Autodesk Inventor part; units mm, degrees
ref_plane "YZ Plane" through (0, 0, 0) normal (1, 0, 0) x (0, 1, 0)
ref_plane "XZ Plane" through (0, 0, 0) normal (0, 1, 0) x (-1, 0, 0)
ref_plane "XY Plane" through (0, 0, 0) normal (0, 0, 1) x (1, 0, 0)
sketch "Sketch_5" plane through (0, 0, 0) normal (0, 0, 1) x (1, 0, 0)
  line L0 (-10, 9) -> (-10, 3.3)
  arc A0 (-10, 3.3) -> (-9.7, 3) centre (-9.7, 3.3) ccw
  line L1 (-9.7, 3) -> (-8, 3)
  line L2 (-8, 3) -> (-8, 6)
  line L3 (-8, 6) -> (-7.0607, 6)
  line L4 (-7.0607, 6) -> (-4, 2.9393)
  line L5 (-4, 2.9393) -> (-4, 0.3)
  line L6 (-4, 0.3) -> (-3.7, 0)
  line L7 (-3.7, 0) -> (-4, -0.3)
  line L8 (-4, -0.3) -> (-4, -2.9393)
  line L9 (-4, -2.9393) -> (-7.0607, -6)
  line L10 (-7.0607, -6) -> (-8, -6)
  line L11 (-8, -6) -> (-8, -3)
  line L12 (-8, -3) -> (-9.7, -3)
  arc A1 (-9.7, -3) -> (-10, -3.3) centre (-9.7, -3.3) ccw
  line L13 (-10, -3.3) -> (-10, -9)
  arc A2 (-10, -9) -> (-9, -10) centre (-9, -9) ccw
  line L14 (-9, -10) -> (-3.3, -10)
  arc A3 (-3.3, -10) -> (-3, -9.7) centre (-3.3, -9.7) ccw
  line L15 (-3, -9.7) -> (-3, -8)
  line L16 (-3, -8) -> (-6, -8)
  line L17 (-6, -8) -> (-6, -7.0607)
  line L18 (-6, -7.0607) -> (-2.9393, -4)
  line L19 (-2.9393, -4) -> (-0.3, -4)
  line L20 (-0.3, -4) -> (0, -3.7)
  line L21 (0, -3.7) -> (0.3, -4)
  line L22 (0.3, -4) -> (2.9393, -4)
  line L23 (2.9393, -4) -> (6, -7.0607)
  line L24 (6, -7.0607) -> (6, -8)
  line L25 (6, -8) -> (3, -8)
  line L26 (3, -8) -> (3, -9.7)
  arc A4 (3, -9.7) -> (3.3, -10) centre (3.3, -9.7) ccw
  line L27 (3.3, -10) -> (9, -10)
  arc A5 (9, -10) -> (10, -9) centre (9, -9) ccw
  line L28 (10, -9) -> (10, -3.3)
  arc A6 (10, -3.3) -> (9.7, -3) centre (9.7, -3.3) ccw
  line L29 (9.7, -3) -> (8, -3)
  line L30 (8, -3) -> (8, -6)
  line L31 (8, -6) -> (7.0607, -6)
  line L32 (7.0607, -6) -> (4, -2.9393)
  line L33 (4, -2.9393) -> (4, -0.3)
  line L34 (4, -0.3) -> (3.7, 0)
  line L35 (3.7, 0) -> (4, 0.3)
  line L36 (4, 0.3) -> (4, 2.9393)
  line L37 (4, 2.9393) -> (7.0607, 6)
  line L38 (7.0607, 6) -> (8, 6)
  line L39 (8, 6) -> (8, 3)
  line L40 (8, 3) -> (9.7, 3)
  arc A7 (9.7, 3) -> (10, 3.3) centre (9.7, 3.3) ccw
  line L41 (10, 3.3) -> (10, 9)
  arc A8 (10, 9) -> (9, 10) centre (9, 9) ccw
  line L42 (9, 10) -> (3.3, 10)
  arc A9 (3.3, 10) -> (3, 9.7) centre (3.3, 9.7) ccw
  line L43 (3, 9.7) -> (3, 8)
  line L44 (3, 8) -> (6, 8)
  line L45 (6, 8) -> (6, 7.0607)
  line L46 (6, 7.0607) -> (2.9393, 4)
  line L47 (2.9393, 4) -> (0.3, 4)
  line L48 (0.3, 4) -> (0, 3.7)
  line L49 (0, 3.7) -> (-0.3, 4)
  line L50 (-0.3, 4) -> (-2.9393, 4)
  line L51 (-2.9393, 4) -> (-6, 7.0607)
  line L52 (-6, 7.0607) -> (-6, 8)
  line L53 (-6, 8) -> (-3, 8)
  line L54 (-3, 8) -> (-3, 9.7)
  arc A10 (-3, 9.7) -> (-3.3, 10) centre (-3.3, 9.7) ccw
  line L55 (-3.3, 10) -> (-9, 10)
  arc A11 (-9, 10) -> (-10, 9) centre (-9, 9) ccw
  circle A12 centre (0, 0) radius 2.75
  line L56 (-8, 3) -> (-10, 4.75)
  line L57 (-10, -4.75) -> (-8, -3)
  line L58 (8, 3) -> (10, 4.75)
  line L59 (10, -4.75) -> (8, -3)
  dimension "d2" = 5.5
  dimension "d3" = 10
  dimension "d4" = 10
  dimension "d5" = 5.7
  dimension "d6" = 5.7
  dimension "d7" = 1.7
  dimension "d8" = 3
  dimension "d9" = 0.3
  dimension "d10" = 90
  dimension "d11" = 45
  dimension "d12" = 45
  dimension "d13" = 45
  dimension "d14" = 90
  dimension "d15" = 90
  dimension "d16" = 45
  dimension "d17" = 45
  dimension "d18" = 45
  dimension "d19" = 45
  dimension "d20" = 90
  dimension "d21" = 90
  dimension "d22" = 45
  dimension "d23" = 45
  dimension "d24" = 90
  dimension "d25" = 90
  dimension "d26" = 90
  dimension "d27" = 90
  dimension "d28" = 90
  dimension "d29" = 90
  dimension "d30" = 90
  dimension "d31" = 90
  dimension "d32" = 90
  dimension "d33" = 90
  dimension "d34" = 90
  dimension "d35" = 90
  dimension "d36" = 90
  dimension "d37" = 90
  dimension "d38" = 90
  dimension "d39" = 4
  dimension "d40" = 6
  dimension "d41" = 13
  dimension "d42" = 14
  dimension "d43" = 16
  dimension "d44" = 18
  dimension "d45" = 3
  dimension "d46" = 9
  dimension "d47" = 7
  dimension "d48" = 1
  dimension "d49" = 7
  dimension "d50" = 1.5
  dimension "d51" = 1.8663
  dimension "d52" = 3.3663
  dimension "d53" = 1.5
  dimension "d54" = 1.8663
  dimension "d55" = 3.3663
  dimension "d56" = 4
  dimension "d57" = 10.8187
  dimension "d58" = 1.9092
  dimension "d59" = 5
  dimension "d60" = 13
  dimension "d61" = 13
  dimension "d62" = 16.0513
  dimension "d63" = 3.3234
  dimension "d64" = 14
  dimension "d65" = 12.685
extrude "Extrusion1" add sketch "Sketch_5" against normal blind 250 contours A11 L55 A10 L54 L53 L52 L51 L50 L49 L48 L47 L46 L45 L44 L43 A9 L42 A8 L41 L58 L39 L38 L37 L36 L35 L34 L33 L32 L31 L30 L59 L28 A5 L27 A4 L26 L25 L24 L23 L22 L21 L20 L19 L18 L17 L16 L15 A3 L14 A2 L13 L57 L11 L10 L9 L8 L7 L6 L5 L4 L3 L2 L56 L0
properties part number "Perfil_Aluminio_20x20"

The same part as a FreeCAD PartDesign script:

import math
import FreeCAD as App
import Part
import Sketcher
Q = App.Units.Quantity

doc = App.newDocument("Part")
body = doc.addObject("PartDesign::Body", "Body")

# Sketch on XY plane
sketch1 = body.newObject("Sketcher::SketchObject", "Sketch")
sketch1.AttachmentSupport = (doc.getObject("XY_Plane"), [""])
sketch1.MapMode = "FlatFace"
sketch1.addGeometry(Part.ArcOfCircle(Part.Circle(App.Vector(-9, 9, 0), App.Vector(0, 0, 1), 1), math.radians(90), math.radians(180)), False)
sketch1.addGeometry(Part.LineSegment(App.Vector(-10, 9, 0), App.Vector(-10, 4.75, 0)), False)
sketch1.addGeometry(Part.LineSegment(App.Vector(-10, 4.75, 0), App.Vector(-8, 3, 0)), False)
sketch1.addGeometry(Part.LineSegment(App.Vector(-8, 3, 0), App.Vector(-8, 6, 0)), False)
sketch1.addGeometry(Part.LineSegment(App.Vector(-8, 6, 0), App.Vector(-7.0607, 6, 0)), False)
sketch1.addGeometry(Part.LineSegment(App.Vector(-7.0607, 6, 0), App.Vector(-4, 2.9393, 0)), False)
sketch1.addGeometry(Part.LineSegment(App.Vector(-4, 2.9393, 0), App.Vector(-4, 0.3, 0)), False)
sketch1.addGeometry(Part.LineSegment(App.Vector(-4, 0.3, 0), App.Vector(-3.7, 0, 0)), False)
sketch1.addGeometry(Part.LineSegment(App.Vector(-3.7, 0, 0), App.Vector(-4, -0.3, 0)), False)
sketch1.addGeometry(Part.LineSegment(App.Vector(-4, -0.3, 0), App.Vector(-4, -2.9393, 0)), False)
sketch1.addGeometry(Part.LineSegment(App.Vector(-4, -2.9393, 0), App.Vector(-7.0607, -6, 0)), False)
sketch1.addGeometry(Part.LineSegment(App.Vector(-7.0607, -6, 0), App.Vector(-8, -6, 0)), False)
sketch1.addGeometry(Part.LineSegment(App.Vector(-8, -6, 0), App.Vector(-8, -3, 0)), False)
sketch1.addGeometry(Part.LineSegment(App.Vector(-8, -3, 0), App.Vector(-10, -4.75, 0)), False)
sketch1.addGeometry(Part.LineSegment(App.Vector(-10, -4.75, 0), App.Vector(-10, -9, 0)), False)
sketch1.addGeometry(Part.ArcOfCircle(Part.Circle(App.Vector(-9, -9, 0), App.Vector(0, 0, 1), 1), math.radians(180), math.radians(270)), False)
sketch1.addGeometry(Part.LineSegment(App.Vector(-9, -10, 0), App.Vector(-3.3, -10, 0)), False)
sketch1.addGeometry(Part.ArcOfCircle(Part.Circle(App.Vector(-3.3, -9.7, 0), App.Vector(0, 0, 1), 0.3), math.radians(-90), math.radians(0)), False)
sketch1.addGeometry(Part.LineSegment(App.Vector(-3, -9.7, 0), App.Vector(-3, -8, 0)), False)
sketch1.addGeometry(Part.LineSegment(App.Vector(-3, -8, 0), App.Vector(-6, -8, 0)), False)
sketch1.addGeometry(Part.LineSegment(App.Vector(-6, -8, 0), App.Vector(-6, -7.0607, 0)), False)
sketch1.addGeometry(Part.LineSegment(App.Vector(-6, -7.0607, 0), App.Vector(-2.9393, -4, 0)), False)
sketch1.addGeometry(Part.LineSegment(App.Vector(-2.9393, -4, 0), App.Vector(-0.3, -4, 0)), False)
sketch1.addGeometry(Part.LineSegment(App.Vector(-0.3, -4, 0), App.Vector(0, -3.7, 0)), False)
sketch1.addGeometry(Part.LineSegment(App.Vector(0, -3.7, 0), App.Vector(0.3, -4, 0)), False)
sketch1.addGeometry(Part.LineSegment(App.Vector(0.3, -4, 0), App.Vector(2.9393, -4, 0)), False)
sketch1.addGeometry(Part.LineSegment(App.Vector(2.9393, -4, 0), App.Vector(6, -7.0607, 0)), False)
sketch1.addGeometry(Part.LineSegment(App.Vector(6, -7.0607, 0), App.Vector(6, -8, 0)), False)
sketch1.addGeometry(Part.LineSegment(App.Vector(6, -8, 0), App.Vector(3, -8, 0)), False)
sketch1.addGeometry(Part.LineSegment(App.Vector(3, -8, 0), App.Vector(3, -9.7, 0)), False)
sketch1.addGeometry(Part.ArcOfCircle(Part.Circle(App.Vector(3.3, -9.7, 0), App.Vector(0, 0, 1), 0.3), math.radians(180), math.radians(270)), False)
sketch1.addGeometry(Part.LineSegment(App.Vector(3.3, -10, 0), App.Vector(9, -10, 0)), False)
sketch1.addGeometry(Part.ArcOfCircle(Part.Circle(App.Vector(9, -9, 0), App.Vector(0, 0, 1), 1), math.radians(-90), math.radians(0)), False)
sketch1.addGeometry(Part.LineSegment(App.Vector(10, -9, 0), App.Vector(10, -4.75, 0)), False)
sketch1.addGeometry(Part.LineSegment(App.Vector(10, -4.75, 0), App.Vector(8, -3, 0)), False)
sketch1.addGeometry(Part.LineSegment(App.Vector(8, -3, 0), App.Vector(8, -6, 0)), False)
sketch1.addGeometry(Part.LineSegment(App.Vector(8, -6, 0), App.Vector(7.0607, -6, 0)), False)
sketch1.addGeometry(Part.LineSegment(App.Vector(7.0607, -6, 0), App.Vector(4, -2.9393, 0)), False)
sketch1.addGeometry(Part.LineSegment(App.Vector(4, -2.9393, 0), App.Vector(4, -0.3, 0)), False)
sketch1.addGeometry(Part.LineSegment(App.Vector(4, -0.3, 0), App.Vector(3.7, 0, 0)), False)
sketch1.addGeometry(Part.LineSegment(App.Vector(3.7, 0, 0), App.Vector(4, 0.3, 0)), False)
sketch1.addGeometry(Part.LineSegment(App.Vector(4, 0.3, 0), App.Vector(4, 2.9393, 0)), False)
sketch1.addGeometry(Part.LineSegment(App.Vector(4, 2.9393, 0), App.Vector(7.0607, 6, 0)), False)
sketch1.addGeometry(Part.LineSegment(App.Vector(7.0607, 6, 0), App.Vector(8, 6, 0)), False)
sketch1.addGeometry(Part.LineSegment(App.Vector(8, 6, 0), App.Vector(8, 3, 0)), False)
sketch1.addGeometry(Part.LineSegment(App.Vector(8, 3, 0), App.Vector(10, 4.75, 0)), False)
sketch1.addGeometry(Part.LineSegment(App.Vector(10, 4.75, 0), App.Vector(10, 9, 0)), False)
sketch1.addGeometry(Part.ArcOfCircle(Part.Circle(App.Vector(9, 9, 0), App.Vector(0, 0, 1), 1), math.radians(0), math.radians(90)), False)
sketch1.addGeometry(Part.LineSegment(App.Vector(9, 10, 0), App.Vector(3.3, 10, 0)), False)
sketch1.addGeometry(Part.ArcOfCircle(Part.Circle(App.Vector(3.3, 9.7, 0), App.Vector(0, 0, 1), 0.3), math.radians(90), math.radians(180)), False)
sketch1.addGeometry(Part.LineSegment(App.Vector(3, 9.7, 0), App.Vector(3, 8, 0)), False)
sketch1.addGeometry(Part.LineSegment(App.Vector(3, 8, 0), App.Vector(6, 8, 0)), False)
sketch1.addGeometry(Part.LineSegment(App.Vector(6, 8, 0), App.Vector(6, 7.0607, 0)), False)
sketch1.addGeometry(Part.LineSegment(App.Vector(6, 7.0607, 0), App.Vector(2.9393, 4, 0)), False)
sketch1.addGeometry(Part.LineSegment(App.Vector(2.9393, 4, 0), App.Vector(0.3, 4, 0)), False)
sketch1.addGeometry(Part.LineSegment(App.Vector(0.3, 4, 0), App.Vector(0, 3.7, 0)), False)
sketch1.addGeometry(Part.LineSegment(App.Vector(0, 3.7, 0), App.Vector(-0.3, 4, 0)), False)
sketch1.addGeometry(Part.LineSegment(App.Vector(-0.3, 4, 0), App.Vector(-2.9393, 4, 0)), False)
sketch1.addGeometry(Part.LineSegment(App.Vector(-2.9393, 4, 0), App.Vector(-6, 7.0607, 0)), False)
sketch1.addGeometry(Part.LineSegment(App.Vector(-6, 7.0607, 0), App.Vector(-6, 8, 0)), False)
sketch1.addGeometry(Part.LineSegment(App.Vector(-6, 8, 0), App.Vector(-3, 8, 0)), False)
sketch1.addGeometry(Part.LineSegment(App.Vector(-3, 8, 0), App.Vector(-3, 9.7, 0)), False)
sketch1.addGeometry(Part.ArcOfCircle(Part.Circle(App.Vector(-3.3, 9.7, 0), App.Vector(0, 0, 1), 0.3), math.radians(0), math.radians(90)), False)
sketch1.addGeometry(Part.LineSegment(App.Vector(-3.3, 10, 0), App.Vector(-9, 10, 0)), False)
sketch1.addGeometry(Part.Circle(App.Vector(0, 0, 0), App.Vector(0, 0, 1), 2.75), False)
sketch1.addConstraint(Sketcher.Constraint("Tangent", 0, 2, 1, 1))
sketch1.addConstraint(Sketcher.Constraint("Coincident", 1, 2, 2, 1))
sketch1.addConstraint(Sketcher.Constraint("Coincident", 2, 2, 3, 1))
sketch1.addConstraint(Sketcher.Constraint("Coincident", 3, 2, 4, 1))
sketch1.addConstraint(Sketcher.Constraint("Coincident", 4, 2, 5, 1))
sketch1.addConstraint(Sketcher.Constraint("Coincident", 5, 2, 6, 1))
sketch1.addConstraint(Sketcher.Constraint("Coincident", 6, 2, 7, 1))
sketch1.addConstraint(Sketcher.Constraint("Coincident", 7, 2, 8, 1))
sketch1.addConstraint(Sketcher.Constraint("Coincident", 8, 2, 9, 1))
sketch1.addConstraint(Sketcher.Constraint("Coincident", 9, 2, 10, 1))
sketch1.addConstraint(Sketcher.Constraint("Coincident", 10, 2, 11, 1))
sketch1.addConstraint(Sketcher.Constraint("Coincident", 11, 2, 12, 1))
sketch1.addConstraint(Sketcher.Constraint("Coincident", 12, 2, 13, 1))
sketch1.addConstraint(Sketcher.Constraint("Coincident", 13, 2, 14, 1))
sketch1.addConstraint(Sketcher.Constraint("Tangent", 14, 2, 15, 1))
sketch1.addConstraint(Sketcher.Constraint("Tangent", 15, 2, 16, 1))
sketch1.addConstraint(Sketcher.Constraint("Tangent", 16, 2, 17, 1))
sketch1.addConstraint(Sketcher.Constraint("Tangent", 17, 2, 18, 1))
sketch1.addConstraint(Sketcher.Constraint("Coincident", 18, 2, 19, 1))
sketch1.addConstraint(Sketcher.Constraint("Coincident", 19, 2, 20, 1))
sketch1.addConstraint(Sketcher.Constraint("Coincident", 20, 2, 21, 1))
sketch1.addConstraint(Sketcher.Constraint("Coincident", 21, 2, 22, 1))
sketch1.addConstraint(Sketcher.Constraint("Coincident", 22, 2, 23, 1))
sketch1.addConstraint(Sketcher.Constraint("Coincident", 23, 2, 24, 1))
sketch1.addConstraint(Sketcher.Constraint("Coincident", 24, 2, 25, 1))
sketch1.addConstraint(Sketcher.Constraint("Coincident", 25, 2, 26, 1))
sketch1.addConstraint(Sketcher.Constraint("Coincident", 26, 2, 27, 1))
sketch1.addConstraint(Sketcher.Constraint("Coincident", 27, 2, 28, 1))
sketch1.addConstraint(Sketcher.Constraint("Coincident", 28, 2, 29, 1))
sketch1.addConstraint(Sketcher.Constraint("Tangent", 29, 2, 30, 1))
sketch1.addConstraint(Sketcher.Constraint("Tangent", 30, 2, 31, 1))
sketch1.addConstraint(Sketcher.Constraint("Tangent", 31, 2, 32, 1))
sketch1.addConstraint(Sketcher.Constraint("Tangent", 32, 2, 33, 1))
sketch1.addConstraint(Sketcher.Constraint("Coincident", 33, 2, 34, 1))
sketch1.addConstraint(Sketcher.Constraint("Coincident", 34, 2, 35, 1))
sketch1.addConstraint(Sketcher.Constraint("Coincident", 35, 2, 36, 1))
sketch1.addConstraint(Sketcher.Constraint("Coincident", 36, 2, 37, 1))
sketch1.addConstraint(Sketcher.Constraint("Coincident", 37, 2, 38, 1))
sketch1.addConstraint(Sketcher.Constraint("Coincident", 38, 2, 39, 1))
sketch1.addConstraint(Sketcher.Constraint("Coincident", 39, 2, 40, 1))
sketch1.addConstraint(Sketcher.Constraint("Coincident", 40, 2, 41, 1))
sketch1.addConstraint(Sketcher.Constraint("Coincident", 41, 2, 42, 1))
sketch1.addConstraint(Sketcher.Constraint("Coincident", 42, 2, 43, 1))
sketch1.addConstraint(Sketcher.Constraint("Coincident", 43, 2, 44, 1))
sketch1.addConstraint(Sketcher.Constraint("Coincident", 44, 2, 45, 1))
sketch1.addConstraint(Sketcher.Constraint("Coincident", 45, 2, 46, 1))
sketch1.addConstraint(Sketcher.Constraint("Tangent", 46, 2, 47, 1))
sketch1.addConstraint(Sketcher.Constraint("Tangent", 47, 2, 48, 1))
sketch1.addConstraint(Sketcher.Constraint("Tangent", 48, 2, 49, 1))
sketch1.addConstraint(Sketcher.Constraint("Tangent", 49, 2, 50, 1))
sketch1.addConstraint(Sketcher.Constraint("Coincident", 50, 2, 51, 1))
sketch1.addConstraint(Sketcher.Constraint("Coincident", 51, 2, 52, 1))
sketch1.addConstraint(Sketcher.Constraint("Coincident", 52, 2, 53, 1))
sketch1.addConstraint(Sketcher.Constraint("Coincident", 53, 2, 54, 1))
sketch1.addConstraint(Sketcher.Constraint("Coincident", 54, 2, 55, 1))
sketch1.addConstraint(Sketcher.Constraint("Coincident", 55, 2, 56, 1))
sketch1.addConstraint(Sketcher.Constraint("Coincident", 56, 2, 57, 1))
sketch1.addConstraint(Sketcher.Constraint("Coincident", 57, 2, 58, 1))
sketch1.addConstraint(Sketcher.Constraint("Coincident", 58, 2, 59, 1))
sketch1.addConstraint(Sketcher.Constraint("Coincident", 59, 2, 60, 1))
sketch1.addConstraint(Sketcher.Constraint("Coincident", 60, 2, 61, 1))
sketch1.addConstraint(Sketcher.Constraint("Tangent", 61, 2, 62, 1))
sketch1.addConstraint(Sketcher.Constraint("Tangent", 62, 2, 63, 1))
sketch1.addConstraint(Sketcher.Constraint("Tangent", 63, 2, 0, 1))
sketch1.addConstraint(Sketcher.Constraint("Vertical", 1))
sketch1.addConstraint(Sketcher.Constraint("Vertical", 3))
sketch1.addConstraint(Sketcher.Constraint("Horizontal", 4))
sketch1.addConstraint(Sketcher.Constraint("Vertical", 6))
sketch1.addConstraint(Sketcher.Constraint("Vertical", 9))
sketch1.addConstraint(Sketcher.Constraint("Horizontal", 11))
sketch1.addConstraint(Sketcher.Constraint("Vertical", 12))
sketch1.addConstraint(Sketcher.Constraint("Vertical", 14))
sketch1.addConstraint(Sketcher.Constraint("Horizontal", 16))
sketch1.addConstraint(Sketcher.Constraint("Vertical", 18))
sketch1.addConstraint(Sketcher.Constraint("Horizontal", 19))
sketch1.addConstraint(Sketcher.Constraint("Vertical", 20))
sketch1.addConstraint(Sketcher.Constraint("Horizontal", 22))
sketch1.addConstraint(Sketcher.Constraint("Horizontal", 25))
sketch1.addConstraint(Sketcher.Constraint("Vertical", 27))
sketch1.addConstraint(Sketcher.Constraint("Horizontal", 28))
sketch1.addConstraint(Sketcher.Constraint("Vertical", 29))
sketch1.addConstraint(Sketcher.Constraint("Horizontal", 31))
sketch1.addConstraint(Sketcher.Constraint("Vertical", 33))
sketch1.addConstraint(Sketcher.Constraint("Vertical", 35))
sketch1.addConstraint(Sketcher.Constraint("Horizontal", 36))
sketch1.addConstraint(Sketcher.Constraint("Vertical", 38))
sketch1.addConstraint(Sketcher.Constraint("Vertical", 41))
sketch1.addConstraint(Sketcher.Constraint("Horizontal", 43))
sketch1.addConstraint(Sketcher.Constraint("Vertical", 44))
sketch1.addConstraint(Sketcher.Constraint("Vertical", 46))
sketch1.addConstraint(Sketcher.Constraint("Horizontal", 48))
sketch1.addConstraint(Sketcher.Constraint("Vertical", 50))
sketch1.addConstraint(Sketcher.Constraint("Horizontal", 51))
sketch1.addConstraint(Sketcher.Constraint("Vertical", 52))
sketch1.addConstraint(Sketcher.Constraint("Horizontal", 54))
sketch1.addConstraint(Sketcher.Constraint("Horizontal", 57))
sketch1.addConstraint(Sketcher.Constraint("Vertical", 59))
sketch1.addConstraint(Sketcher.Constraint("Horizontal", 60))
sketch1.addConstraint(Sketcher.Constraint("Vertical", 61))
sketch1.addConstraint(Sketcher.Constraint("Horizontal", 63))
sketch1.addConstraint(Sketcher.Constraint("Coincident", 64, 3, -1, 1))
sketch1.addConstraint(Sketcher.Constraint("Equal", 0, 15))
sketch1.addConstraint(Sketcher.Constraint("Equal", 17, 30))
sketch1.addConstraint(Sketcher.Constraint("Equal", 15, 32))
sketch1.addConstraint(Sketcher.Constraint("Equal", 32, 47))
sketch1.addConstraint(Sketcher.Constraint("Equal", 30, 49))
sketch1.addConstraint(Sketcher.Constraint("Equal", 49, 62))
sketch1.addConstraint(Sketcher.Constraint("Symmetric", 0, 3, 32, 3, -1, 1))
sketch1.addConstraint(Sketcher.Constraint("Symmetric", 15, 3, 47, 3, -1, 1))
sketch1.addConstraint(Sketcher.Constraint("Symmetric", 2, 2, 34, 2, -1, 1))
sketch1.addConstraint(Sketcher.Constraint("Symmetric", 4, 2, 36, 2, -1, 1))
sketch1.addConstraint(Sketcher.Constraint("Symmetric", 5, 2, 37, 2, -1, 1))
sketch1.addConstraint(Sketcher.Constraint("Symmetric", 7, 2, 39, 2, -1, 1))
sketch1.addConstraint(Sketcher.Constraint("Symmetric", 8, 2, 40, 2, -1, 1))
sketch1.addConstraint(Sketcher.Constraint("Symmetric", 10, 2, 42, 2, -1, 1))
sketch1.addConstraint(Sketcher.Constraint("Symmetric", 12, 2, 44, 2, -1, 1))
sketch1.addConstraint(Sketcher.Constraint("Symmetric", 18, 2, 50, 2, -1, 1))
sketch1.addConstraint(Sketcher.Constraint("Symmetric", 20, 2, 52, 2, -1, 1))
sketch1.addConstraint(Sketcher.Constraint("Symmetric", 21, 2, 53, 2, -1, 1))
sketch1.addConstraint(Sketcher.Constraint("Symmetric", 23, 2, 55, 2, -1, 1))
sketch1.addConstraint(Sketcher.Constraint("Symmetric", 24, 2, 56, 2, -1, 1))
sketch1.addConstraint(Sketcher.Constraint("Symmetric", 26, 2, 58, 2, -1, 1))
sketch1.addConstraint(Sketcher.Constraint("Symmetric", 28, 2, 60, 2, -1, 1))
sketch1.addConstraint(Sketcher.Constraint("Symmetric", 17, 3, 30, 3, -2))
sketch1.addConstraint(Sketcher.Constraint("Symmetric", 22, 2, 24, 2, -2))
sketch1.addConstraint(Sketcher.Constraint("Symmetric", 20, 2, 26, 2, -2))
sketch1.addConstraint(Sketcher.Constraint("Symmetric", 13, 2, 33, 2, -2))
sketch1.addConstraint(Sketcher.Constraint("Symmetric", 12, 2, 34, 2, -2))
sketch1.addConstraint(Sketcher.Constraint("Symmetric", 10, 2, 36, 2, -2))
sketch1.addConstraint(Sketcher.Constraint("Symmetric", 9, 2, 37, 2, -2))
sketch1.addConstraint(Sketcher.Constraint("PointOnObject", 7, 2, -1))
sketch1.addConstraint(Sketcher.Constraint("PointOnObject", 23, 2, -2))
sketch1.addConstraint(Sketcher.Constraint("Parallel", 5, 7))
sketch1.addConstraint(Sketcher.Constraint("Perpendicular", 7, 8))
sketch1.addConstraint(Sketcher.Constraint("Parallel", 8, 10))
sketch1.addConstraint(Sketcher.Constraint("Parallel", 10, 21))
sketch1.addConstraint(Sketcher.Constraint("Parallel", 21, 23))
sketch1.addConstraint(Sketcher.Constraint("Parallel", 24, 26))
sketch1.addConstraint(Sketcher.Constraint("Parallel", 2, 34))
sketch1.addConstraint(Sketcher.Constraint("Parallel", 37, 39))
sketch1.addConstraint(Sketcher.Constraint("Parallel", 40, 42))
sketch1.addConstraint(Sketcher.Constraint("Parallel", 13, 45))
sketch1.addConstraint(Sketcher.Constraint("Parallel", 53, 55))
sketch1.addConstraint(Sketcher.Constraint("Parallel", 56, 58))
sketch1.addConstraint(Sketcher.Constraint("Horizontal", 19, 2, 27, 2))
sketch1.addConstraint(Sketcher.Constraint("Equal", 60, 3))
sketch1.addConstraint(Sketcher.Constraint("Equal", 57, 6))
sketch1.addConstraint(Sketcher.Constraint("Equal", 43, 20))
sketch1.addConstraint(Sketcher.Constraint("Equal", 10, 21))
sketch1.addConstraint(Sketcher.Constraint("Equal", 8, 23))
sketch1.addConstraint(Sketcher.Constraint("Radius", 0, Q("1 mm")))
sketch1.addConstraint(Sketcher.Constraint("Diameter", 64, Q("5.5 mm")))
sketch1.addConstraint(Sketcher.Constraint("Radius", 17, Q("0.3 mm")))
sketch1.addConstraint(Sketcher.Constraint("DistanceX", 19, 2, 19, 1, Q("3 mm")))
sketch1.addConstraint(Sketcher.Constraint("DistanceX", 16, 1, 16, 2, Q("5.7 mm")))
sketch1.addConstraint(Sketcher.Constraint("DistanceY", 18, 1, 18, 2, Q("1.7 mm")))
sketch1.addConstraint(Sketcher.Constraint("DistanceX", 0, 3, -1, 1, Q("9 mm")))
sketch1.addConstraint(Sketcher.Constraint("DistanceY", -1, 1, 0, 3, Q("9 mm")))
sketch1.addConstraint(Sketcher.Constraint("DistanceX", 5, 2, -1, 1, Q("4 mm")))
sketch1.addConstraint(Sketcher.Constraint("DistanceY", 21, 2, -1, 1, Q("4 mm")))
sketch1.addConstraint(Sketcher.Constraint("DistanceY", -1, 1, 6, 2, Q("0.3 mm")))
sketch1.addConstraint(Sketcher.Constraint("DistanceY", 1, 2, 1, 1, Q("4.25 mm")))
sketch1.addConstraint(Sketcher.Constraint("DistanceX", 4, 1, 4, 2, Q("0.9393 mm")))
pad1 = body.newObject("PartDesign::Pad", "Pad")
pad1.Profile = sketch1
pad1.Length = 250
pad1.Reversed = True

doc.recompute()
